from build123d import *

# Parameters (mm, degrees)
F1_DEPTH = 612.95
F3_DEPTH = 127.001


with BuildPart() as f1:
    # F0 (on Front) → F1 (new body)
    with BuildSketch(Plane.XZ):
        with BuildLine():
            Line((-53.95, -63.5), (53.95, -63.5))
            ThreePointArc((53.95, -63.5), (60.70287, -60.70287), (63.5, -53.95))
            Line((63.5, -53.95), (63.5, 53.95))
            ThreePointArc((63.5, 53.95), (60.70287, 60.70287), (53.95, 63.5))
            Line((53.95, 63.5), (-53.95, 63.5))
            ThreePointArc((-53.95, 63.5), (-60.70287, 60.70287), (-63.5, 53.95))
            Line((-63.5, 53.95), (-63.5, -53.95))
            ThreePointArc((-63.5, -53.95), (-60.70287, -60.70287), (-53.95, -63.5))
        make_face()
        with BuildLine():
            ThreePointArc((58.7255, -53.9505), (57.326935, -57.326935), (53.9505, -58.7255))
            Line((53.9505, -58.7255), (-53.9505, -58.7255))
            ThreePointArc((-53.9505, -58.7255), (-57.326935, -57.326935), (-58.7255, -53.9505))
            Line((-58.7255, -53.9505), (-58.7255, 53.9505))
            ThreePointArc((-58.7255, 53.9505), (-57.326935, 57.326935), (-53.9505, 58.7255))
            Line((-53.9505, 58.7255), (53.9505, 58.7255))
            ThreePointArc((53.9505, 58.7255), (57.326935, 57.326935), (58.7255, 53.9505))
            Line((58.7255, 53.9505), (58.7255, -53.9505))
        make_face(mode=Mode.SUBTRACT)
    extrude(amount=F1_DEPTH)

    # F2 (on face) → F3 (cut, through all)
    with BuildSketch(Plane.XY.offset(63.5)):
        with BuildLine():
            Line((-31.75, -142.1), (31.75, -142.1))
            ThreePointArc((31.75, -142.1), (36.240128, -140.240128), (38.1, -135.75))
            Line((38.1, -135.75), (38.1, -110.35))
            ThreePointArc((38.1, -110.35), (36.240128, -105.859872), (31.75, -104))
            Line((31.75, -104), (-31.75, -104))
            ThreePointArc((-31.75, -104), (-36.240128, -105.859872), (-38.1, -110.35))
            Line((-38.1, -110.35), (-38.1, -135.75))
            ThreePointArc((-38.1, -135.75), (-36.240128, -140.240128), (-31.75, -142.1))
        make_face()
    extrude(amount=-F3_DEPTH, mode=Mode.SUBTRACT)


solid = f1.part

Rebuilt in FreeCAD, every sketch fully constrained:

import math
import FreeCAD as App
import Part
import Sketcher
Q = App.Units.Quantity

doc = App.newDocument("Part")
body = doc.addObject("PartDesign::Body", "Body")

# Sketch on XZ plane
sketch1 = body.newObject("Sketcher::SketchObject", "Sketch")
sketch1.AttachmentSupport = (doc.getObject("XZ_Plane"), [""])
sketch1.MapMode = "FlatFace"
sketch1.addGeometry(Part.LineSegment(App.Vector(-53.95, -63.5, 0), App.Vector(53.95, -63.5, 0)), False)
sketch1.addGeometry(Part.ArcOfCircle(Part.Circle(App.Vector(53.950001, -53.950001, 0), App.Vector(0, 0, 1), 9.549999), math.radians(-90.000005), math.radians(0.000005)), False)
sketch1.addGeometry(Part.LineSegment(App.Vector(63.5, -53.95, 0), App.Vector(63.5, 53.95, 0)), False)
sketch1.addGeometry(Part.ArcOfCircle(Part.Circle(App.Vector(53.950001, 53.950001, 0), App.Vector(0, 0, 1), 9.549999), math.radians(-0.000005), math.radians(90.000005)), False)
sketch1.addGeometry(Part.LineSegment(App.Vector(53.95, 63.5, 0), App.Vector(-53.95, 63.5, 0)), False)
sketch1.addGeometry(Part.ArcOfCircle(Part.Circle(App.Vector(-53.950001, 53.950001, 0), App.Vector(0, 0, 1), 9.549999), math.radians(89.999995), math.radians(180.000005)), False)
sketch1.addGeometry(Part.LineSegment(App.Vector(-63.5, 53.95, 0), App.Vector(-63.5, -53.95, 0)), False)
sketch1.addGeometry(Part.ArcOfCircle(Part.Circle(App.Vector(-53.950001, -53.950001, 0), App.Vector(0, 0, 1), 9.549999), math.radians(179.999995), math.radians(270.000005)), False)
sketch1.addGeometry(Part.LineSegment(App.Vector(58.7255, 53.9505, 0), App.Vector(58.7255, -53.9505, 0)), False)
sketch1.addGeometry(Part.ArcOfCircle(Part.Circle(App.Vector(53.9505, -53.9505, 0), App.Vector(0, 0, 1), 4.775), math.radians(-90.000005), math.radians(0.000005)), False)
sketch1.addGeometry(Part.LineSegment(App.Vector(53.9505, -58.7255, 0), App.Vector(-53.9505, -58.7255, 0)), False)
sketch1.addGeometry(Part.ArcOfCircle(Part.Circle(App.Vector(-53.9505, -53.9505, 0), App.Vector(0, 0, 1), 4.775), math.radians(179.999995), math.radians(270.000005)), False)
sketch1.addGeometry(Part.LineSegment(App.Vector(-58.7255, -53.9505, 0), App.Vector(-58.7255, 53.9505, 0)), False)
sketch1.addGeometry(Part.ArcOfCircle(Part.Circle(App.Vector(-53.9505, 53.9505, 0), App.Vector(0, 0, 1), 4.775), math.radians(89.999995), math.radians(180.000005)), False)
sketch1.addGeometry(Part.LineSegment(App.Vector(-53.9505, 58.7255, 0), App.Vector(53.9505, 58.7255, 0)), False)
sketch1.addGeometry(Part.ArcOfCircle(Part.Circle(App.Vector(53.9505, 53.9505, 0), App.Vector(0, 0, 1), 4.775), math.radians(-0.000005), math.radians(90.000005)), False)
sketch1.addConstraint(Sketcher.Constraint("Tangent", 0, 2, 1, 1))
sketch1.addConstraint(Sketcher.Constraint("Tangent", 1, 2, 2, 1))
sketch1.addConstraint(Sketcher.Constraint("Tangent", 2, 2, 3, 1))
sketch1.addConstraint(Sketcher.Constraint("Tangent", 3, 2, 4, 1))
sketch1.addConstraint(Sketcher.Constraint("Tangent", 4, 2, 5, 1))
sketch1.addConstraint(Sketcher.Constraint("Tangent", 5, 2, 6, 1))
sketch1.addConstraint(Sketcher.Constraint("Tangent", 6, 2, 7, 1))
sketch1.addConstraint(Sketcher.Constraint("Tangent", 7, 2, 0, 1))
sketch1.addConstraint(Sketcher.Constraint("Tangent", 8, 2, 9, 2))
sketch1.addConstraint(Sketcher.Constraint("Tangent", 9, 1, 10, 1))
sketch1.addConstraint(Sketcher.Constraint("Tangent", 10, 2, 11, 2))
sketch1.addConstraint(Sketcher.Constraint("Tangent", 11, 1, 12, 1))
sketch1.addConstraint(Sketcher.Constraint("Tangent", 12, 2, 13, 2))
sketch1.addConstraint(Sketcher.Constraint("Tangent", 13, 1, 14, 1))
sketch1.addConstraint(Sketcher.Constraint("Tangent", 14, 2, 15, 2))
sketch1.addConstraint(Sketcher.Constraint("Tangent", 15, 1, 8, 1))
sketch1.addConstraint(Sketcher.Constraint("Horizontal", 0))
sketch1.addConstraint(Sketcher.Constraint("Vertical", 2))
sketch1.addConstraint(Sketcher.Constraint("Horizontal", 4))
sketch1.addConstraint(Sketcher.Constraint("Vertical", 6))
sketch1.addConstraint(Sketcher.Constraint("Vertical", 8))
sketch1.addConstraint(Sketcher.Constraint("Horizontal", 10))
sketch1.addConstraint(Sketcher.Constraint("Vertical", 12))
sketch1.addConstraint(Sketcher.Constraint("Horizontal", 14))
sketch1.addConstraint(Sketcher.Constraint("Equal", 1, 3))
sketch1.addConstraint(Sketcher.Constraint("Equal", 3, 5))
sketch1.addConstraint(Sketcher.Constraint("Equal", 5, 7))
sketch1.addConstraint(Sketcher.Constraint("Equal", 9, 11))
sketch1.addConstraint(Sketcher.Constraint("Equal", 11, 13))
sketch1.addConstraint(Sketcher.Constraint("Equal", 13, 15))
sketch1.addConstraint(Sketcher.Constraint("Symmetric", 1, 3, 5, 3, -1, 1))
sketch1.addConstraint(Sketcher.Constraint("Symmetric", 9, 3, 13, 3, -1, 1))
sketch1.addConstraint(Sketcher.Constraint("Equal", 4, 2))
sketch1.addConstraint(Sketcher.Constraint("Equal", 14, 8))
sketch1.addConstraint(Sketcher.Constraint("DistanceY", 0, 2, -1, 1, Q("2.5 in")))
sketch1.addConstraint(Sketcher.Constraint("Radius", 1, 9.549999))
sketch1.addConstraint(Sketcher.Constraint("Radius", 9, 4.775))
sketch1.addConstraint(Sketcher.Constraint("DistanceX", 10, 2, 10, 1, 107.901))
pad1 = body.newObject("PartDesign::Pad", "Pad")
pad1.Profile = sketch1
pad1.Length = 612.95

# Sketch on XY plane
sketch2 = body.newObject("Sketcher::SketchObject", "Sketch001")
sketch2.AttachmentSupport = (doc.getObject("XY_Plane"), [""])
sketch2.MapMode = "FlatFace"
sketch2.AttachmentOffset = App.Placement(App.Vector(0, 0, 2.5 * 25.4), App.Rotation())
sketch2.addGeometry(Part.LineSegment(App.Vector(-31.75, -142.1, 0), App.Vector(31.75, -142.1, 0)), False)
sketch2.addGeometry(Part.ArcOfCircle(Part.Circle(App.Vector(31.75, -135.75, 0), App.Vector(0, 0, 1), 6.35), math.radians(-89.999998), math.radians(-0.000002)), False)
sketch2.addGeometry(Part.LineSegment(App.Vector(38.1, -135.75, 0), App.Vector(38.1, -110.35, 0)), False)
sketch2.addGeometry(Part.ArcOfCircle(Part.Circle(App.Vector(31.75, -110.35, 0), App.Vector(0, 0, 1), 6.35), math.radians(0.000002), math.radians(89.999998)), False)
sketch2.addGeometry(Part.LineSegment(App.Vector(31.75, -104, 0), App.Vector(-31.75, -104, 0)), False)
sketch2.addGeometry(Part.ArcOfCircle(Part.Circle(App.Vector(-31.75, -110.35, 0), App.Vector(0, 0, 1), 6.35), math.radians(90.000002), math.radians(179.999998)), False)
sketch2.addGeometry(Part.LineSegment(App.Vector(-38.1, -110.35, 0), App.Vector(-38.1, -135.75, 0)), False)
sketch2.addGeometry(Part.ArcOfCircle(Part.Circle(App.Vector(-31.75, -135.75, 0), App.Vector(0, 0, 1), 6.35), math.radians(-179.999998), math.radians(-90.000002)), False)
sketch2.addConstraint(Sketcher.Constraint("Tangent", 0, 2, 1, 1))
sketch2.addConstraint(Sketcher.Constraint("Tangent", 1, 2, 2, 1))
sketch2.addConstraint(Sketcher.Constraint("Tangent", 2, 2, 3, 1))
sketch2.addConstraint(Sketcher.Constraint("Tangent", 3, 2, 4, 1))
sketch2.addConstraint(Sketcher.Constraint("Tangent", 4, 2, 5, 1))
sketch2.addConstraint(Sketcher.Constraint("Tangent", 5, 2, 6, 1))
sketch2.addConstraint(Sketcher.Constraint("Tangent", 6, 2, 7, 1))
sketch2.addConstraint(Sketcher.Constraint("Tangent", 7, 2, 0, 1))
sketch2.addConstraint(Sketcher.Constraint("Horizontal", 0))
sketch2.addConstraint(Sketcher.Constraint("Vertical", 2))
sketch2.addConstraint(Sketcher.Constraint("Horizontal", 4))
sketch2.addConstraint(Sketcher.Constraint("Vertical", 6))
sketch2.addConstraint(Sketcher.Constraint("Equal", 1, 3))
sketch2.addConstraint(Sketcher.Constraint("Equal", 3, 5))
sketch2.addConstraint(Sketcher.Constraint("Equal", 5, 7))
sketch2.addConstraint(Sketcher.Constraint("DistanceY", 2, 1, 2, 2, Q("1 in")))
sketch2.addConstraint(Sketcher.Constraint("Radius", 1, Q("0.25 in")))
sketch2.addConstraint(Sketcher.Constraint("DistanceX", 0, 1, 0, 2, Q("2.5 in")))
sketch2.addConstraint(Sketcher.Constraint("DistanceX", -1, 1, 1, 2, Q("1.5 in")))
sketch2.addConstraint(Sketcher.Constraint("DistanceY", 1, 3, -1, 1, 135.75))
pocket1 = body.newObject("PartDesign::Pocket", "Pocket")
pocket1.Profile = sketch2
pocket1.Type = "ThroughAll"

doc.recompute()
